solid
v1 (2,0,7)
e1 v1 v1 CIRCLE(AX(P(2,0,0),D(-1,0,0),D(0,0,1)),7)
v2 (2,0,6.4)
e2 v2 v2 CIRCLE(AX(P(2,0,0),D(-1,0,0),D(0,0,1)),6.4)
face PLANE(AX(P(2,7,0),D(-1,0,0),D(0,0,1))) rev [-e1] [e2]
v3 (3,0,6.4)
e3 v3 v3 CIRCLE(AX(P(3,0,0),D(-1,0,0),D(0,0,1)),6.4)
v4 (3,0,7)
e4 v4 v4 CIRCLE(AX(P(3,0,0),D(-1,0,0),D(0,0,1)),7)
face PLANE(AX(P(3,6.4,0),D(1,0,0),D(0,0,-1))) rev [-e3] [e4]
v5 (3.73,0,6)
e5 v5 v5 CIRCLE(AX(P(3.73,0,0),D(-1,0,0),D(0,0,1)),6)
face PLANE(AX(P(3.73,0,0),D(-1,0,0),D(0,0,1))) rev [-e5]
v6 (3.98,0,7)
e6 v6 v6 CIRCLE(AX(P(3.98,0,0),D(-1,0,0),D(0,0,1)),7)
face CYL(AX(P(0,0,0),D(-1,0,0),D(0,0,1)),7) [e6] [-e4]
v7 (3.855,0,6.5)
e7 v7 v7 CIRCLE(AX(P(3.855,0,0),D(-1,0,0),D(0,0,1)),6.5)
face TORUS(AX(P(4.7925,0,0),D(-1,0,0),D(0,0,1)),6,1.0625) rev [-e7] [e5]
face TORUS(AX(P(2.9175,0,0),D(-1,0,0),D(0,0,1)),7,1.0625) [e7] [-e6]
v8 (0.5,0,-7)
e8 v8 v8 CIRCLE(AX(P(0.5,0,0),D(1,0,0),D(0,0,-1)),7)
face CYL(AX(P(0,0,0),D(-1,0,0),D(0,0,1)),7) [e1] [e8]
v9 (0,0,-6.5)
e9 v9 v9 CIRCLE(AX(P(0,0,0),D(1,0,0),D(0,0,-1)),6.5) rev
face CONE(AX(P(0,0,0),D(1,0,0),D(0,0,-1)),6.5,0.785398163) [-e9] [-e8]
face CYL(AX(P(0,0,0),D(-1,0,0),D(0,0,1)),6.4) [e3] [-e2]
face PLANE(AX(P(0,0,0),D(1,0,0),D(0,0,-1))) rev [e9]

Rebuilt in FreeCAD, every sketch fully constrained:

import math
import FreeCAD as App
import Part
import Sketcher


def edges_at(feature, points):
    """Names of the edges that pass closest to the given points."""
    edges = feature.Shape.Edges
    near = lambda p: min(range(len(edges)), key=lambda i: edges[i].distToShape(Part.Vertex(*p))[0])
    return sorted({f"Edge{near(p) + 1}" for p in points})

doc = App.newDocument("Part")
body = doc.addObject("PartDesign::Body", "Body")

# Sketch on XY plane
sketch1 = body.newObject("Sketcher::SketchObject", "Sketch")
sketch1.AttachmentSupport = (doc.getObject("XY_Plane"), [""])
sketch1.MapMode = "FlatFace"
sketch1.addGeometry([
    Part.LineSegment(App.Vector(0, 7, 0), App.Vector(0, 0, 0)),  # 0
    Part.LineSegment(App.Vector(0, 0, 0), App.Vector(3.7, 0, 0)),  # 1
    Part.LineSegment(App.Vector(3.7, 0, 0), App.Vector(3.7, 6, 0)),  # 2
    Part.ArcOfCircle(Part.Circle(App.Vector(4.8, 6, 0), App.Vector(0, 0, 1), 1.1), math.radians(152), math.radians(180)),  # 3
    Part.ArcOfCircle(Part.Circle(App.Vector(2.9, 7, 0), App.Vector(0, 0, 1), 1.1), math.radians(-28), math.radians(0)),  # 4
    Part.LineSegment(App.Vector(4, 7, 0), App.Vector(3, 7, 0)),  # 5
    Part.LineSegment(App.Vector(3, 7, 0), App.Vector(3, 6.4, 0)),  # 6
    Part.LineSegment(App.Vector(3, 6.4, 0), App.Vector(2, 6.4, 0)),  # 7
    Part.LineSegment(App.Vector(2, 6.4, 0), App.Vector(2, 7, 0)),  # 8
    Part.LineSegment(App.Vector(2, 7, 0), App.Vector(0, 7, 0)),  # 9
], False)
sketch1.addConstraint([
    Sketcher.Constraint("Coincident", 0, 2, 1, 1),
    Sketcher.Constraint("Coincident", 1, 2, 2, 1),
    Sketcher.Constraint("Tangent", 2, 2, 3, 2),
    Sketcher.Constraint("Tangent", 3, 1, 4, 1),
    Sketcher.Constraint("Coincident", 4, 2, 5, 1),
    Sketcher.Constraint("Coincident", 5, 2, 6, 1),
    Sketcher.Constraint("Coincident", 6, 2, 7, 1),
    Sketcher.Constraint("Coincident", 7, 2, 8, 1),
    Sketcher.Constraint("Coincident", 8, 2, 9, 1),
    Sketcher.Constraint("Coincident", 9, 2, 0, 1),
    Sketcher.Constraint("Vertical", 0),
    Sketcher.Constraint("Horizontal", 1),
    Sketcher.Constraint("Vertical", 2),
    Sketcher.Constraint("Horizontal", 5),
    Sketcher.Constraint("Vertical", 6),
    Sketcher.Constraint("Horizontal", 7),
    Sketcher.Constraint("Vertical", 8),
    Sketcher.Constraint("Horizontal", 9),
    Sketcher.Constraint("Coincident", 0, 2, -1, 1),
    Sketcher.Constraint("Equal", 3, 4),
    Sketcher.Constraint("Horizontal", 5, 2, 8, 2),
    Sketcher.Constraint("DistanceX", 7, 2, 7, 1, 1.0),
    Sketcher.Constraint("DistanceX", 9, 2, 9, 1, 2.0),
    Sketcher.Constraint("DistanceY", 0, 2, 0, 1, 7.0),
    Sketcher.Constraint("DistanceY", 2, 1, 2, 2, 6.0),
    Sketcher.Constraint("DistanceY", 6, 2, 6, 1, 0.6),
    Sketcher.Constraint("DistanceY", -1, 1, 4, 3, 7.0),
    Sketcher.Constraint("DistanceX", 1, 1, 1, 2, 3.73),
    Sketcher.Constraint("DistanceX", 5, 2, 5, 1, 0.98),
])
revolution = body.newObject("PartDesign::Revolution", "Revolution")
revolution.Profile = sketch1
revolution.ReferenceAxis = (sketch1, ["H_Axis"])
revolution.Angle = 360
doc.recompute()

chamfer = body.newObject("PartDesign::Chamfer", "Chamfer")
chamfer.Base = (revolution, edges_at(revolution, [(0, 0, -7)]))
chamfer.Size = 0.5

doc.recompute()
